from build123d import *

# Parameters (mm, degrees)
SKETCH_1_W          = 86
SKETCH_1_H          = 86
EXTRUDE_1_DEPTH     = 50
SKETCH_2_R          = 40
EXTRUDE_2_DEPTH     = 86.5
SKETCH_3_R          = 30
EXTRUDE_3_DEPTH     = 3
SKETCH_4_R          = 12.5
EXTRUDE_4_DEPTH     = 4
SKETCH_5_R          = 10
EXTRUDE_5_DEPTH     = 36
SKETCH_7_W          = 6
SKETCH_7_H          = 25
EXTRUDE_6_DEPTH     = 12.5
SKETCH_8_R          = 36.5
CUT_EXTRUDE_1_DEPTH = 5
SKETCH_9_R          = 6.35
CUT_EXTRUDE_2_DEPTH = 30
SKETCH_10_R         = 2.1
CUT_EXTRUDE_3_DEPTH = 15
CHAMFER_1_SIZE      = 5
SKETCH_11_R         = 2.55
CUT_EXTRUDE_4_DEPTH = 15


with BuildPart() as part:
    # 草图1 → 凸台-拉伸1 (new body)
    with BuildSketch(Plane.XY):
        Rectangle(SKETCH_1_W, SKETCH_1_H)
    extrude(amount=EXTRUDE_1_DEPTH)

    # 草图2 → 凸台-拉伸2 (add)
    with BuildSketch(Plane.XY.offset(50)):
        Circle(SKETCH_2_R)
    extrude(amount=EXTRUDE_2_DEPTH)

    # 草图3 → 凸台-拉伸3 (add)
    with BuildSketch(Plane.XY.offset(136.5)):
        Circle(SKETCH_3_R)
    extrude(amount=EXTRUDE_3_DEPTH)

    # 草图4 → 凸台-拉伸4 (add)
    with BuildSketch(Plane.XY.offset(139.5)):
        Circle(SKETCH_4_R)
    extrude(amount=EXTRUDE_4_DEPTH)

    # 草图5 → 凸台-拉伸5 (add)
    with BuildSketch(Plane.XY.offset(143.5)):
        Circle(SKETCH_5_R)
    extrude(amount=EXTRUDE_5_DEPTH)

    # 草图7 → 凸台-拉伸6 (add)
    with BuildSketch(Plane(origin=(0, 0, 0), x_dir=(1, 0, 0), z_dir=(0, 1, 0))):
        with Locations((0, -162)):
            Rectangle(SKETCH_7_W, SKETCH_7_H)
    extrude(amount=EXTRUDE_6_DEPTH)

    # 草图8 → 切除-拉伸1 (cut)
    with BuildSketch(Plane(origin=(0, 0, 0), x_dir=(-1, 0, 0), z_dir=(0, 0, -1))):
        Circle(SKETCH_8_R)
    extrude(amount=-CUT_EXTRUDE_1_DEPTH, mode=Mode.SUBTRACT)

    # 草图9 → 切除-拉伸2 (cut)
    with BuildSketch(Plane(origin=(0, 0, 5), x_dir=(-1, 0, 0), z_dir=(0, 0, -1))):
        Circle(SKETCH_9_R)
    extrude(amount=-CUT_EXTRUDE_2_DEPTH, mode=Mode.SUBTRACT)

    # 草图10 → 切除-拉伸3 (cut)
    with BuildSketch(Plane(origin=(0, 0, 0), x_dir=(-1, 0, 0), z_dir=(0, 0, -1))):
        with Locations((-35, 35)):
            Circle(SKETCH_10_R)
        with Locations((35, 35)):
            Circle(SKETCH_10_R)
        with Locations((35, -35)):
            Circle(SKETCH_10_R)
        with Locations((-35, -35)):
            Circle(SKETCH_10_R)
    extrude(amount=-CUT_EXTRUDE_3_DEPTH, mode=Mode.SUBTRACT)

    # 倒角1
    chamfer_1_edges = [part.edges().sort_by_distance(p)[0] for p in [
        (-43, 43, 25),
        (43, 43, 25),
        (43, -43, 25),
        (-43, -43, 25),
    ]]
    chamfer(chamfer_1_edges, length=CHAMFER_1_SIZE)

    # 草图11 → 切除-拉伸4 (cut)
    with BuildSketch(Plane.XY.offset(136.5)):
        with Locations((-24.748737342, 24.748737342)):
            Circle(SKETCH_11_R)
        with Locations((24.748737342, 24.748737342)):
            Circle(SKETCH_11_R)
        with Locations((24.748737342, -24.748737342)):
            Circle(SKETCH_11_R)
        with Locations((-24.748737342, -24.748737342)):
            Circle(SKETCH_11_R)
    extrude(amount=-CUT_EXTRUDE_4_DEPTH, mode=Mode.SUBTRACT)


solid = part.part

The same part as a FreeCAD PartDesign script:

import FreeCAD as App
import Part
import Sketcher

V = App.Vector
Q = App.Units.Quantity


def edges_at(feature, points):
    """Names of the edges that pass closest to the given points."""
    edges = feature.Shape.Edges
    near = lambda p: min(range(len(edges)), key=lambda i: edges[i].distToShape(Part.Vertex(*p))[0])
    return sorted({f"Edge{near(p) + 1}" for p in points})


def add_polygon(sketch, points):
    """Adds a closed chain of lines whose ends are joined by coincident constraints."""
    first, n = sketch.GeometryCount, len(points)
    for a, b in zip(points, points[1:] + points[:1]):
        sketch.addGeometry(Part.LineSegment(App.Vector(*a, 0), App.Vector(*b, 0)), False)
    for i in range(n):
        sketch.addConstraint(Sketcher.Constraint("Coincident", first + i, 2, first + (i + 1) % n, 1))

doc = App.newDocument("Part")
params = doc.addObject("Spreadsheet::Sheet", "Params")
for row, (alias, value) in enumerate([
    ("sketch1_width", "86 mm"),
    ("pad1_length", "50 mm"),
    ("sketch2_diameter", "80 mm"),
    ("pad2_length", "86.5 mm"),
    ("sketch3_diameter", "60 mm"),
    ("pad3_length", "3 mm"),
    ("sketch4_diameter", "25 mm"),
    ("pad4_length", "4 mm"),
    ("sketch5_diameter", "20 mm"),
    ("pad5_length", "36 mm"),
    ("sketch6_width", "6 mm"),
    ("sketch6_height", "25 mm"),
    ("pad6_length", "12.5 mm"),
    ("sketch7_diameter", "73 mm"),
    ("pocket1_length", "5 mm"),
    ("sketch8_diameter", "12.7 mm"),
    ("pocket2_length", "30 mm"),
    ("sketch9_diameter", "4.2 mm"),
    ("pocket3_length", "15 mm"),
    ("chamfer_size", "5 mm"),
    ("sketch10_diameter", "5.1 mm"),
    ("pocket4_length", "15 mm"),
], start=1):
    params.set(f"A{row}", alias)
    params.set(f"B{row}", "=" + value)
    params.setAlias(f"B{row}", alias)

body = doc.addObject("PartDesign::Body", "Body")

sketch1 = doc.addObject("Sketcher::SketchObject", "Sketch")
body.addObject(sketch1)
sketch1.AttachmentSupport = (doc.XY_Plane, [""])
sketch1.MapMode = "FlatFace"
add_polygon(sketch1, [(-43, 43), (-43, -43), (43, -43), (43, 43)])
sketch1.addConstraint([
    Sketcher.Constraint("Vertical", 0),
    Sketcher.Constraint("Horizontal", 1),
    Sketcher.Constraint("Vertical", 2),
    Sketcher.Constraint("Horizontal", 3),
    Sketcher.Constraint("Symmetric", 0, 2, 2, 2, -1, 1),
    Sketcher.Constraint("Equal", 3, 0),
    Sketcher.Constraint("DistanceX", 1, 1, 1, 2, Q("86 mm")),
])
sketch1.setExpression("Constraints[10]", "Params.sketch1_width")
pad1 = doc.addObject("PartDesign::Pad", "Pad")
body.addObject(pad1)
pad1.Profile = sketch1
pad1.setExpression("Length", "Params.pad1_length")

sketch2 = doc.addObject("Sketcher::SketchObject", "Sketch001")
body.addObject(sketch2)
sketch2.AttachmentSupport = (doc.XY_Plane, [""])
sketch2.MapMode = "FlatFace"
sketch2.AttachmentOffset = App.Placement(V(0, 0, 50), App.Rotation())
sketch2.addGeometry(Part.Circle(V(0, 0, 0), V(0, 0, 1), 40), False)
sketch2.addConstraint([
    Sketcher.Constraint("Coincident", 0, 3, -1, 1),
    Sketcher.Constraint("Diameter", 0, Q("80 mm")),
])
sketch2.setExpression("Constraints[1]", "Params.sketch2_diameter")
pad2 = doc.addObject("PartDesign::Pad", "Pad001")
body.addObject(pad2)
pad2.Profile = sketch2
pad2.setExpression("Length", "Params.pad2_length")

sketch3 = doc.addObject("Sketcher::SketchObject", "Sketch002")
body.addObject(sketch3)
sketch3.AttachmentSupport = (doc.XY_Plane, [""])
sketch3.MapMode = "FlatFace"
sketch3.AttachmentOffset = App.Placement(V(0, 0, 136.5), App.Rotation())
sketch3.addGeometry(Part.Circle(V(0, 0, 0), V(0, 0, 1), 30), False)
sketch3.addConstraint([
    Sketcher.Constraint("Coincident", 0, 3, -1, 1),
    Sketcher.Constraint("Diameter", 0, Q("60 mm")),
])
sketch3.setExpression("Constraints[1]", "Params.sketch3_diameter")
pad3 = doc.addObject("PartDesign::Pad", "Pad002")
body.addObject(pad3)
pad3.Profile = sketch3
pad3.setExpression("Length", "Params.pad3_length")

sketch4 = doc.addObject("Sketcher::SketchObject", "Sketch003")
body.addObject(sketch4)
sketch4.AttachmentSupport = (doc.XY_Plane, [""])
sketch4.MapMode = "FlatFace"
sketch4.AttachmentOffset = App.Placement(V(0, 0, 139.5), App.Rotation())
sketch4.addGeometry(Part.Circle(V(0, 0, 0), V(0, 0, 1), 12), False)
sketch4.addConstraint([
    Sketcher.Constraint("Coincident", 0, 3, -1, 1),
    Sketcher.Constraint("Diameter", 0, Q("25 mm")),
])
sketch4.setExpression("Constraints[1]", "Params.sketch4_diameter")
pad4 = doc.addObject("PartDesign::Pad", "Pad003")
body.addObject(pad4)
pad4.Profile = sketch4
pad4.setExpression("Length", "Params.pad4_length")

sketch5 = doc.addObject("Sketcher::SketchObject", "Sketch004")
body.addObject(sketch5)
sketch5.AttachmentSupport = (doc.XY_Plane, [""])
sketch5.MapMode = "FlatFace"
sketch5.AttachmentOffset = App.Placement(V(0, 0, 143.5), App.Rotation())
sketch5.addGeometry(Part.Circle(V(0, 0, 0), V(0, 0, 1), 10), False)
sketch5.addConstraint([
    Sketcher.Constraint("Coincident", 0, 3, -1, 1),
    Sketcher.Constraint("Diameter", 0, Q("20 mm")),
])
sketch5.setExpression("Constraints[1]", "Params.sketch5_diameter")
pad5 = doc.addObject("PartDesign::Pad", "Pad004")
body.addObject(pad5)
pad5.Profile = sketch5
pad5.setExpression("Length", "Params.pad5_length")

sketch6 = doc.addObject("Sketcher::SketchObject", "Sketch005")
body.addObject(sketch6)
sketch6.AttachmentSupport = (doc.XZ_Plane, [""])
sketch6.MapMode = "FlatFace"
add_polygon(sketch6, [(-3, 150), (-3, 174), (3, 174), (3, 150)])
sketch6.addConstraint([
    Sketcher.Constraint("Vertical", 0),
    Sketcher.Constraint("Horizontal", 1),
    Sketcher.Constraint("Vertical", 2),
    Sketcher.Constraint("Horizontal", 3),
    Sketcher.Constraint("DistanceX", 1, 1, 1, 2, Q("6 mm")),
    Sketcher.Constraint("DistanceY", 0, 1, 0, 2, Q("25 mm")),
    Sketcher.Constraint("DistanceX", 0, 2, -1, 1, Q("3 mm")),
    Sketcher.Constraint("DistanceY", -1, 1, 0, 2, Q("174.5 mm")),
])
sketch6.setExpression("Constraints[8]", "Params.sketch6_width")
sketch6.setExpression("Constraints[9]", "Params.sketch6_height")
pad6 = doc.addObject("PartDesign::Pad", "Pad005")
body.addObject(pad6)
pad6.Profile = sketch6
pad6.setExpression("Length", "Params.pad6_length")
pad6.Reversed = True

sketch7 = doc.addObject("Sketcher::SketchObject", "Sketch006")
body.addObject(sketch7)
sketch7.AttachmentSupport = (doc.XY_Plane, [""])
sketch7.MapMode = "FlatFace"
sketch7.addGeometry(Part.Circle(V(0, 0, 0), V(0, 0, 1), 36), False)
sketch7.addConstraint([
    Sketcher.Constraint("Coincident", 0, 3, -1, 1),
    Sketcher.Constraint("Diameter", 0, Q("73 mm")),
])
sketch7.setExpression("Constraints[1]", "Params.sketch7_diameter")
pocket1 = doc.addObject("PartDesign::Pocket", "Pocket")
body.addObject(pocket1)
pocket1.Profile = sketch7
pocket1.setExpression("Length", "Params.pocket1_length")
pocket1.Reversed = True

sketch8 = doc.addObject("Sketcher::SketchObject", "Sketch007")
body.addObject(sketch8)
sketch8.AttachmentSupport = (doc.XY_Plane, [""])
sketch8.MapMode = "FlatFace"
sketch8.AttachmentOffset = App.Placement(V(0, 0, 5), App.Rotation())
sketch8.addGeometry(Part.Circle(V(0, 0, 0), V(0, 0, 1), 6), False)
sketch8.addConstraint([
    Sketcher.Constraint("Coincident", 0, 3, -1, 1),
    Sketcher.Constraint("Diameter", 0, Q("12.7 mm")),
])
sketch8.setExpression("Constraints[1]", "Params.sketch8_diameter")
pocket2 = doc.addObject("PartDesign::Pocket", "Pocket001")
body.addObject(pocket2)
pocket2.Profile = sketch8
pocket2.setExpression("Length", "Params.pocket2_length")
pocket2.Reversed = True

sketch9 = doc.addObject("Sketcher::SketchObject", "Sketch008")
body.addObject(sketch9)
sketch9.AttachmentSupport = (doc.XY_Plane, [""])
sketch9.MapMode = "FlatFace"
sketch9.addGeometry([
    Part.Circle(V(35, 35, 0), V(0, 0, 1), 2.1),
    Part.Circle(V(-35, 35, 0), V(0, 0, 1), 2.1),
    Part.Circle(V(-35, -35, 0), V(0, 0, 1), 2.1),
    Part.Circle(V(35, -35, 0), V(0, 0, 1), 2.1),
], False)
sketch9.addConstraint([
    Sketcher.Constraint("Equal", 0, 1),
    Sketcher.Constraint("Equal", 1, 2),
    Sketcher.Constraint("Equal", 2, 3),
    Sketcher.Constraint("Symmetric", 0, 3, 2, 3, -1, 1),
    Sketcher.Constraint("Symmetric", 1, 3, 3, 3, -1, 1),
    Sketcher.Constraint("Symmetric", 0, 3, 1, 3, -2),
    Sketcher.Constraint("Diameter", 0, Q("4.2 mm")),
    Sketcher.Constraint("DistanceX", -1, 1, 0, 3, Q("35 mm")),
    Sketcher.Constraint("DistanceY", -1, 1, 0, 3, Q("35 mm")),
])
sketch9.setExpression("Constraints[6]", "Params.sketch9_diameter")
pocket3 = doc.addObject("PartDesign::Pocket", "Pocket002")
body.addObject(pocket3)
pocket3.Profile = sketch9
pocket3.setExpression("Length", "Params.pocket3_length")
pocket3.Reversed = True
doc.recompute()

chamfer = doc.addObject("PartDesign::Chamfer", "Chamfer")
body.addObject(chamfer)
chamfer.Base = (pocket3, edges_at(pocket3, [
    (-43, 43, 25),
    (43, 43, 25),
    (43, -43, 25),
    (-43, -43, 25),
]))
chamfer.setExpression("Size", "Params.chamfer_size")

sketch10 = doc.addObject("Sketcher::SketchObject", "Sketch009")
body.addObject(sketch10)
sketch10.AttachmentSupport = (doc.XY_Plane, [""])
sketch10.MapMode = "FlatFace"
sketch10.AttachmentOffset = App.Placement(V(0, 0, 136.5), App.Rotation())
sketch10.addGeometry([
    Part.Circle(V(-24.7, 24.7, 0), V(0, 0, 1), 2.5),
    Part.Circle(V(24.7, 24.7, 0), V(0, 0, 1), 2.5),
    Part.Circle(V(24.7, -24.7, 0), V(0, 0, 1), 2.5),
    Part.Circle(V(-24.7, -24.7, 0), V(0, 0, 1), 2.5),
], False)
sketch10.addConstraint([
    Sketcher.Constraint("Equal", 0, 1),
    Sketcher.Constraint("Equal", 1, 2),
    Sketcher.Constraint("Equal", 2, 3),
    Sketcher.Constraint("Symmetric", 0, 3, 2, 3, -1, 1),
    Sketcher.Constraint("Symmetric", 1, 3, 3, 3, -1, 1),
    Sketcher.Constraint("Symmetric", 0, 3, 1, 3, -2),
    Sketcher.Constraint("Diameter", 0, Q("5.1 mm")),
    Sketcher.Constraint("DistanceX", 0, 3, -1, 1, Q("24.748737 mm")),
    Sketcher.Constraint("DistanceY", -1, 1, 0, 3, Q("24.748737 mm")),
])
sketch10.setExpression("Constraints[6]", "Params.sketch10_diameter")
pocket4 = doc.addObject("PartDesign::Pocket", "Pocket003")
body.addObject(pocket4)
pocket4.Profile = sketch10
pocket4.setExpression("Length", "Params.pocket4_length")

doc.recompute()
